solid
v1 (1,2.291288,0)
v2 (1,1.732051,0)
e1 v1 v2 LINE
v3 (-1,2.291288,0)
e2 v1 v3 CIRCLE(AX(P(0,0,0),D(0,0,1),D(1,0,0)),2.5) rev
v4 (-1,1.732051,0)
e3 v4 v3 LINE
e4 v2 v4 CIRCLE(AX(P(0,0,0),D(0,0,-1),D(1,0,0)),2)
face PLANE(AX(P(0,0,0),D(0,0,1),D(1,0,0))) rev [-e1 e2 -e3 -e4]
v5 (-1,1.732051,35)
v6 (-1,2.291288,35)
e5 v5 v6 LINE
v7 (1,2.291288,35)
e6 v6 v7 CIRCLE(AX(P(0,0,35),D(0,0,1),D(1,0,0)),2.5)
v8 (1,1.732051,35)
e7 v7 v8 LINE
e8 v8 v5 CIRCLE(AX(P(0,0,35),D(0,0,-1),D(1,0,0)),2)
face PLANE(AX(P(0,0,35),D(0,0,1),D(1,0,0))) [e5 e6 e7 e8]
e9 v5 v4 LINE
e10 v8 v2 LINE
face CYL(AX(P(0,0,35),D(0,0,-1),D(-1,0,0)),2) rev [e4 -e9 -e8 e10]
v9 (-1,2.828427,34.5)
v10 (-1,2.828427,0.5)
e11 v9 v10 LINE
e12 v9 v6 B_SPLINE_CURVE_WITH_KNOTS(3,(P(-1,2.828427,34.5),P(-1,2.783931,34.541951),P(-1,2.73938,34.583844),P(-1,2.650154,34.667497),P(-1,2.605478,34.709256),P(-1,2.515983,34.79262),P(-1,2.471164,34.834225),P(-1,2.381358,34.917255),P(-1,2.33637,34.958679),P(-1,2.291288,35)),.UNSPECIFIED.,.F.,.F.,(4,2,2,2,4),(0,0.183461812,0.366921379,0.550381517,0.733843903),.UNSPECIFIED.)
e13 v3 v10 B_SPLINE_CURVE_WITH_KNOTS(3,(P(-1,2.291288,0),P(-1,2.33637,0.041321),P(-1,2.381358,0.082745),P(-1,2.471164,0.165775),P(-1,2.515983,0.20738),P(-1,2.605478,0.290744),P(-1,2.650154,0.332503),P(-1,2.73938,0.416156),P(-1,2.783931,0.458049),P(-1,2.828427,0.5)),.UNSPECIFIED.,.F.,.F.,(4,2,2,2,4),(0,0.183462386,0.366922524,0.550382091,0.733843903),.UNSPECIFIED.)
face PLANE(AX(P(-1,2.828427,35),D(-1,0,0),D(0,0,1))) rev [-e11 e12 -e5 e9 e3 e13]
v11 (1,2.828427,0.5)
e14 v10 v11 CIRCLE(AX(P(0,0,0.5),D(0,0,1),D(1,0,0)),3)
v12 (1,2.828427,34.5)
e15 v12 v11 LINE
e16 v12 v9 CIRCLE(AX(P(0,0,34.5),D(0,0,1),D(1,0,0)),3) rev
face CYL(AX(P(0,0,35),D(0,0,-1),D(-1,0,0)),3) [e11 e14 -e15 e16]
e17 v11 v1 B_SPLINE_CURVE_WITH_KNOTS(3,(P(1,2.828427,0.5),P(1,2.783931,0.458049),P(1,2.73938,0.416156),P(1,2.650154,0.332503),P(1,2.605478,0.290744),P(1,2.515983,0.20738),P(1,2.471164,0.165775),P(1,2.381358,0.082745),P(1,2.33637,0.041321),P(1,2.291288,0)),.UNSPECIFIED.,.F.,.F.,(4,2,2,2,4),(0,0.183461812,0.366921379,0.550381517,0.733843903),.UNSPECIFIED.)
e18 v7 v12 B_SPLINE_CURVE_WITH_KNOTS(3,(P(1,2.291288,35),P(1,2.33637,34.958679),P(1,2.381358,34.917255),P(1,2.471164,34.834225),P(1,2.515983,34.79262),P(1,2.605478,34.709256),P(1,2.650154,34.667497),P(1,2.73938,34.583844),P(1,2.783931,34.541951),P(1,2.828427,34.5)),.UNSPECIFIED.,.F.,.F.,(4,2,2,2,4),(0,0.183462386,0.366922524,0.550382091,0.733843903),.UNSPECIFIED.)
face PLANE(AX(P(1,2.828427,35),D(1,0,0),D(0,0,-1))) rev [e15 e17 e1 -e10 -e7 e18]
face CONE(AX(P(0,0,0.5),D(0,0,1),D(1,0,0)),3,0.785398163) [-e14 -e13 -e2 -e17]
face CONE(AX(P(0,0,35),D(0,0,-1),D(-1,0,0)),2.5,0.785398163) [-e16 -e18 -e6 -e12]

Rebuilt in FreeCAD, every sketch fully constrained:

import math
import FreeCAD as App
import Part
import Sketcher
Q = App.Units.Quantity


def edges_at(feature, points):
    """Names of the edges that pass closest to the given points."""
    edges = feature.Shape.Edges
    near = lambda p: min(range(len(edges)), key=lambda i: edges[i].distToShape(Part.Vertex(*p))[0])
    return sorted({f"Edge{near(p) + 1}" for p in points})

doc = App.newDocument("Part")
params = doc.addObject("Spreadsheet::Sheet", "Params")
for row, (alias, value) in enumerate([
    ("sketch1_radius", "3 mm"),
    ("sketch1_radius2", "2 mm"),
    ("pad1_length", "35 mm"),
    ("chamfer_size", "0.5 mm"),
], start=1):
    params.set(f"A{row}", alias)
    params.set(f"B{row}", "=" + value)
    params.setAlias(f"B{row}", alias)

body = doc.addObject("PartDesign::Body", "Body")

# Sketch on XY plane
sketch1 = body.newObject("Sketcher::SketchObject", "Sketch")
sketch1.AttachmentSupport = (doc.getObject("XY_Plane"), [""])
sketch1.MapMode = "FlatFace"
sketch1.addGeometry(Part.LineSegment(App.Vector(-1, 1.7, 0), App.Vector(-1, 2.8, 0)), False)
sketch1.addGeometry(Part.ArcOfCircle(Part.Circle(App.Vector(0, 0, 0), App.Vector(0, 0, 1), 3), math.radians(109), math.radians(431)), False)
sketch1.addGeometry(Part.LineSegment(App.Vector(1, 2.8, 0), App.Vector(1, 1.7, 0)), False)
sketch1.addGeometry(Part.ArcOfCircle(Part.Circle(App.Vector(0, 0, 0), App.Vector(0, 0, 1), 2), math.radians(120), math.radians(420)), False)
sketch1.addConstraint(Sketcher.Constraint("Coincident", 0, 2, 1, 1))
sketch1.addConstraint(Sketcher.Constraint("Coincident", 1, 2, 2, 1))
sketch1.addConstraint(Sketcher.Constraint("Coincident", 2, 2, 3, 2))
sketch1.addConstraint(Sketcher.Constraint("Coincident", 3, 1, 0, 1))
sketch1.addConstraint(Sketcher.Constraint("Vertical", 0))
sketch1.addConstraint(Sketcher.Constraint("Vertical", 2))
sketch1.addConstraint(Sketcher.Constraint("Coincident", 1, 3, -1, 1))
sketch1.addConstraint(Sketcher.Constraint("Coincident", 3, 3, -1, 1))
sketch1.addConstraint(Sketcher.Constraint("Horizontal", 0, 2, 1, 2))
sketch1.addConstraint(Sketcher.Constraint("Radius", 1, Q("3 mm")))
sketch1.addConstraint(Sketcher.Constraint("Radius", 3, Q("2 mm")))
sketch1.addConstraint(Sketcher.Constraint("DistanceX", 0, 2, -1, 1, Q("1 mm")))
sketch1.setExpression("Constraints[9]", "Params.sketch1_radius")
sketch1.setExpression("Constraints[10]", "Params.sketch1_radius2")
pad1 = body.newObject("PartDesign::Pad", "Pad")
pad1.Profile = sketch1
pad1.setExpression("Length", "Params.pad1_length")
doc.recompute()

chamfer = body.newObject("PartDesign::Chamfer", "Chamfer")
chamfer.Base = (pad1, edges_at(pad1, [(0, -3, 35), (0, -3, 0)]))
chamfer.setExpression("Size", "Params.chamfer_size")

doc.recompute()
